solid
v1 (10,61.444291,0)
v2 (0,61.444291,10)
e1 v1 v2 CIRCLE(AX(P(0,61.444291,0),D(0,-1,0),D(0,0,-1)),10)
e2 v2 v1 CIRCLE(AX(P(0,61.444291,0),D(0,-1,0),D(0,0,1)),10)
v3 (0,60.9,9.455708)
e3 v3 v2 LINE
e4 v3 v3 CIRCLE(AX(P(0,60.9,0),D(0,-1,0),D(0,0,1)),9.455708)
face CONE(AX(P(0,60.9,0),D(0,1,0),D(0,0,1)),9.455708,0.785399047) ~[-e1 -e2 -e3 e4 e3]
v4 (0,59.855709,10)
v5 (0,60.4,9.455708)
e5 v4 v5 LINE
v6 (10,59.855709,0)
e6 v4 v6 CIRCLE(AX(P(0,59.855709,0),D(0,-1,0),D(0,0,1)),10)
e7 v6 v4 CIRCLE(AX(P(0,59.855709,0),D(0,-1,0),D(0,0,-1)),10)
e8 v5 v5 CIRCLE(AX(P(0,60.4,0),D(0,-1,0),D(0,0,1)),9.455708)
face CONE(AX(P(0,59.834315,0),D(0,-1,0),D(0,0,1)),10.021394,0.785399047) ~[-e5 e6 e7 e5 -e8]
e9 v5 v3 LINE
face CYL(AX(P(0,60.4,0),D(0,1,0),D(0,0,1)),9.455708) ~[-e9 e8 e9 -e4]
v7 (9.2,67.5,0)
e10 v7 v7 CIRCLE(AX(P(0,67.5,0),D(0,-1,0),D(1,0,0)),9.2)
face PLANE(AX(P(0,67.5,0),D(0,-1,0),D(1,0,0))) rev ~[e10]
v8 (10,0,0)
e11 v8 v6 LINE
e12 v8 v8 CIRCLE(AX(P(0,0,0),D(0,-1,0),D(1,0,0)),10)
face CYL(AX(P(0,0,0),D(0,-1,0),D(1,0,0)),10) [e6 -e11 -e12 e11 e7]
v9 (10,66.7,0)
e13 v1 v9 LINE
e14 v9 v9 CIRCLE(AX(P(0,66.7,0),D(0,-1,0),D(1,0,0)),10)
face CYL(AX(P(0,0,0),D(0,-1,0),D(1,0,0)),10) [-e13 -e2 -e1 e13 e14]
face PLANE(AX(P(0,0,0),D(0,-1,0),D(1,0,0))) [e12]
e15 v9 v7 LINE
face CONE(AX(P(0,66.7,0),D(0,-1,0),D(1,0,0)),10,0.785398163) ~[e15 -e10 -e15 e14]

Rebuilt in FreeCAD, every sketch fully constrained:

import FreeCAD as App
import Part
import Sketcher
Q = App.Units.Quantity


def edges_at(feature, points):
    """Names of the edges that pass closest to the given points."""
    edges = feature.Shape.Edges
    near = lambda p: min(range(len(edges)), key=lambda i: edges[i].distToShape(Part.Vertex(*p))[0])
    return sorted({f"Edge{near(p) + 1}" for p in points})

doc = App.newDocument("Part")
params = doc.addObject("Spreadsheet::Sheet", "Params")
for row, (alias, value) in enumerate([
    ("sketch1_diameter", "20 mm"),
    ("pad1_length", "67.5 mm"),
    ("sketch2_width", "0.5 mm"),
    ("sketch2_length", "0.8 mm"),
    ("groove_angle", "360 deg"),
    ("chamfer_size", "0.8 mm"),
    ("chamfer_size2", "0.8 mm"),
], start=1):
    params.set(f"A{row}", alias)
    params.set(f"B{row}", "=" + value)
    params.setAlias(f"B{row}", alias)

body = doc.addObject("PartDesign::Body", "Body")

sketch1 = doc.addObject("Sketcher::SketchObject", "Sketch")
body.addObject(sketch1)
sketch1.AttachmentSupport = (doc.XZ_Plane, [""])
sketch1.MapMode = "FlatFace"
sketch1.addGeometry(Part.Circle(App.Vector(0, 0, 0), App.Vector(0, 0, 1), 10), False)
sketch1.addConstraint(Sketcher.Constraint("Coincident", 0, 3, -1, 1))
sketch1.addConstraint(Sketcher.Constraint("Diameter", 0, Q("20 mm")))
sketch1.setExpression("Constraints[1]", "Params.sketch1_diameter")
pad1 = doc.addObject("PartDesign::Pad", "Pad")
body.addObject(pad1)
pad1.Profile = sketch1
pad1.setExpression("Length", "Params.pad1_length")
pad1.Reversed = True

sketch2 = doc.addObject("Sketcher::SketchObject", "Sketch001")
body.addObject(sketch2)
sketch2.AttachmentSupport = (doc.YZ_Plane, [""])
sketch2.MapMode = "FlatFace"
sketch2.addGeometry(Part.LineSegment(App.Vector(60.4, 9.5, 0), App.Vector(60.9, 9.5, 0)), False)
sketch2.addGeometry(Part.LineSegment(App.Vector(60.9, 9.5, 0), App.Vector(61.5, 10, 0)), False)
sketch2.addGeometry(Part.LineSegment(App.Vector(61.5, 10, 0), App.Vector(59.8, 10, 0)), False)
sketch2.addGeometry(Part.LineSegment(App.Vector(59.8, 10, 0), App.Vector(60.4, 9.5, 0)), False)
sketch2.addGeometry(Part.LineSegment(App.Vector(61.5, -10, 0), App.Vector(60.9, -9.5, 0)), False)
sketch2.addGeometry(Part.LineSegment(App.Vector(60.9, -9.5, 0), App.Vector(60.4, -9.5, 0)), False)
sketch2.addGeometry(Part.LineSegment(App.Vector(60.4, -9.5, 0), App.Vector(59.8, -10, 0)), False)
sketch2.addGeometry(Part.LineSegment(App.Vector(59.8, -10, 0), App.Vector(61.5, -10, 0)), False)
sketch2.addConstraint(Sketcher.Constraint("Coincident", 0, 2, 1, 1))
sketch2.addConstraint(Sketcher.Constraint("Coincident", 1, 2, 2, 1))
sketch2.addConstraint(Sketcher.Constraint("Coincident", 2, 2, 3, 1))
sketch2.addConstraint(Sketcher.Constraint("Coincident", 3, 2, 0, 1))
sketch2.addConstraint(Sketcher.Constraint("Coincident", 4, 2, 5, 1))
sketch2.addConstraint(Sketcher.Constraint("Coincident", 5, 2, 6, 1))
sketch2.addConstraint(Sketcher.Constraint("Coincident", 6, 2, 7, 1))
sketch2.addConstraint(Sketcher.Constraint("Coincident", 7, 2, 4, 1))
sketch2.addConstraint(Sketcher.Constraint("Horizontal", 0))
sketch2.addConstraint(Sketcher.Constraint("Horizontal", 2))
sketch2.addConstraint(Sketcher.Constraint("Horizontal", 5))
sketch2.addConstraint(Sketcher.Constraint("Horizontal", 7))
sketch2.addConstraint(Sketcher.Constraint("Symmetric", 0, 2, 4, 2, -1))
sketch2.addConstraint(Sketcher.Constraint("Symmetric", 2, 2, 6, 2, -1))
sketch2.addConstraint(Sketcher.Constraint("Perpendicular", 1, 3))
sketch2.addConstraint(Sketcher.Constraint("Parallel", 3, 4))
sketch2.addConstraint(Sketcher.Constraint("Perpendicular", 4, 6))
sketch2.addConstraint(Sketcher.Constraint("Vertical", 3, 2, 5, 2))
sketch2.addConstraint(Sketcher.Constraint("DistanceX", 0, 1, 0, 2, Q("0.5 mm")))
sketch2.addConstraint(Sketcher.Constraint("Distance", 1, Q("0.8 mm")))
sketch2.addConstraint(Sketcher.Constraint("DistanceX", -1, 1, 0, 2, Q("60.9 mm")))
sketch2.addConstraint(Sketcher.Constraint("DistanceY", 6, 2, 2, 2, Q("20.042788 mm")))
sketch2.setExpression("Constraints[18]", "Params.sketch2_width")
sketch2.setExpression("Constraints[19]", "Params.sketch2_length")
groove = doc.addObject("PartDesign::Groove", "Groove")
body.addObject(groove)
groove.Profile = sketch2
groove.ReferenceAxis = (sketch2, ["H_Axis"])
groove.setExpression("Angle", "Params.groove_angle")
doc.recompute()

chamfer = doc.addObject("PartDesign::Chamfer", "Chamfer")
body.addObject(chamfer)
chamfer.Base = (groove, edges_at(groove, [(-10, 67.5, 0)]))
chamfer.ChamferType = "Two distances"
chamfer.setExpression("Size", "Params.chamfer_size")
chamfer.setExpression("Size2", "Params.chamfer_size2")

doc.recompute()
